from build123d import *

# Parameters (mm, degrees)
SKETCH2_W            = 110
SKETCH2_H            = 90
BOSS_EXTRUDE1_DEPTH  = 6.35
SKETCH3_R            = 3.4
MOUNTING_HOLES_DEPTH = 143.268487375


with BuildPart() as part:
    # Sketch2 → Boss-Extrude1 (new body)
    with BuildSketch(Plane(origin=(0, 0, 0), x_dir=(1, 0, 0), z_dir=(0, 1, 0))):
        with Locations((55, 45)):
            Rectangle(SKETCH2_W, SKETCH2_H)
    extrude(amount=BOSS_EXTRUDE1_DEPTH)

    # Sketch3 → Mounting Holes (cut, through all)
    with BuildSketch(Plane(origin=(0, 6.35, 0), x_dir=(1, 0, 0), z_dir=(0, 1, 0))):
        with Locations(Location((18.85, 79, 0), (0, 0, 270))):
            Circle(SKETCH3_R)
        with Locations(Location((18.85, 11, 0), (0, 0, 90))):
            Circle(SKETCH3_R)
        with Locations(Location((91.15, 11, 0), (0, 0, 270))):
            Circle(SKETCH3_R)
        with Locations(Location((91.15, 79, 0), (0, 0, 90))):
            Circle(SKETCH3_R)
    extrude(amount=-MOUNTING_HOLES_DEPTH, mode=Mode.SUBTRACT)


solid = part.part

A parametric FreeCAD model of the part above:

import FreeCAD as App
import Part
import Sketcher
from FreeCAD import Vector


def add_polygon(sketch, points):
    """Adds a closed chain of lines whose ends are joined by coincident constraints."""
    first, n = sketch.GeometryCount, len(points)
    for a, b in zip(points, points[1:] + points[:1]):
        sketch.addGeometry(Part.LineSegment(App.Vector(*a, 0), App.Vector(*b, 0)), False)
    for i in range(n):
        sketch.addConstraint(Sketcher.Constraint("Coincident", first + i, 2, first + (i + 1) % n, 1))

doc = App.newDocument("Part")
params = doc.addObject("Spreadsheet::Sheet", "Params")
for row, (alias, value) in enumerate([
    ("sketch1_width", "110 mm"),
    ("sketch1_height", "90 mm"),
    ("pad1_length", "6.35 mm"),
    ("sketch2_diameter", "6.8 mm"),
], start=1):
    params.set(f"A{row}", alias)
    params.set(f"B{row}", "=" + value)
    params.setAlias(f"B{row}", alias)

body = doc.addObject("PartDesign::Body", "Body")

sketch1 = body.newObject("Sketcher::SketchObject", "Sketch")
sketch1.AttachmentSupport = (doc.getObject("XZ_Plane"), [""])
sketch1.MapMode = "FlatFace"
add_polygon(sketch1, [(0, -90), (0, 0), (110, 0), (110, -90)])
sketch1.addConstraint([
    Sketcher.Constraint("Vertical", 0),
    Sketcher.Constraint("Horizontal", 1),
    Sketcher.Constraint("Vertical", 2),
    Sketcher.Constraint("Horizontal", 3),
    Sketcher.Constraint("Coincident", 0, 2, -1, 1),
    Sketcher.Constraint("DistanceX", 1, 1, 1, 2, 110.0),
    Sketcher.Constraint("DistanceY", 0, 1, 0, 2, 90.0),
])
sketch1.setExpression("Constraints[9]", "Params.sketch1_width")
sketch1.setExpression("Constraints[10]", "Params.sketch1_height")
pad1 = body.newObject("PartDesign::Pad", "Pad")
pad1.Profile = sketch1
pad1.setExpression("Length", "Params.pad1_length")
pad1.Reversed = True

sketch2 = body.newObject("Sketcher::SketchObject", "Sketch001")
sketch2.AttachmentSupport = (doc.getObject("XZ_Plane"), [""])
sketch2.MapMode = "FlatFace"
sketch2.AttachmentOffset = App.Placement(Vector(0, 0, -6.35), App.Rotation())
sketch2.addGeometry([
    Part.Circle(Vector(18.9, -79, 0), Vector(0, 0, 1), 3.4),
    Part.Circle(Vector(18.9, -11, 0), Vector(0, 0, 1), 3.4),
    Part.Circle(Vector(91.2, -11, 0), Vector(0, 0, 1), 3.4),
    Part.Circle(Vector(91.2, -79, 0), Vector(0, 0, 1), 3.4),
], False)
sketch2.addConstraint([
    Sketcher.Constraint("Equal", 0, 1),
    Sketcher.Constraint("Equal", 1, 2),
    Sketcher.Constraint("Equal", 2, 3),
    Sketcher.Constraint("Horizontal", 1, 3, 2, 3),
    Sketcher.Constraint("Horizontal", 0, 3, 3, 3),
    Sketcher.Constraint("Vertical", 0, 3, 1, 3),
    Sketcher.Constraint("Vertical", 2, 3, 3, 3),
    Sketcher.Constraint("Diameter", 0, 6.8),
    Sketcher.Constraint("DistanceY", 0, 3, -1, 1, 79.0),
    Sketcher.Constraint("DistanceY", 1, 3, -1, 1, 11.0),
    Sketcher.Constraint("DistanceX", 1, 3, 2, 3, 72.3),
    Sketcher.Constraint("DistanceX", -1, 1, 0, 3, 18.85),
])
sketch2.setExpression("Constraints[7]", "Params.sketch2_diameter")
pocket1 = body.newObject("PartDesign::Pocket", "Pocket")
pocket1.Profile = sketch2
pocket1.Type = "ThroughAll"
pocket1.Reversed = True

doc.recompute()
